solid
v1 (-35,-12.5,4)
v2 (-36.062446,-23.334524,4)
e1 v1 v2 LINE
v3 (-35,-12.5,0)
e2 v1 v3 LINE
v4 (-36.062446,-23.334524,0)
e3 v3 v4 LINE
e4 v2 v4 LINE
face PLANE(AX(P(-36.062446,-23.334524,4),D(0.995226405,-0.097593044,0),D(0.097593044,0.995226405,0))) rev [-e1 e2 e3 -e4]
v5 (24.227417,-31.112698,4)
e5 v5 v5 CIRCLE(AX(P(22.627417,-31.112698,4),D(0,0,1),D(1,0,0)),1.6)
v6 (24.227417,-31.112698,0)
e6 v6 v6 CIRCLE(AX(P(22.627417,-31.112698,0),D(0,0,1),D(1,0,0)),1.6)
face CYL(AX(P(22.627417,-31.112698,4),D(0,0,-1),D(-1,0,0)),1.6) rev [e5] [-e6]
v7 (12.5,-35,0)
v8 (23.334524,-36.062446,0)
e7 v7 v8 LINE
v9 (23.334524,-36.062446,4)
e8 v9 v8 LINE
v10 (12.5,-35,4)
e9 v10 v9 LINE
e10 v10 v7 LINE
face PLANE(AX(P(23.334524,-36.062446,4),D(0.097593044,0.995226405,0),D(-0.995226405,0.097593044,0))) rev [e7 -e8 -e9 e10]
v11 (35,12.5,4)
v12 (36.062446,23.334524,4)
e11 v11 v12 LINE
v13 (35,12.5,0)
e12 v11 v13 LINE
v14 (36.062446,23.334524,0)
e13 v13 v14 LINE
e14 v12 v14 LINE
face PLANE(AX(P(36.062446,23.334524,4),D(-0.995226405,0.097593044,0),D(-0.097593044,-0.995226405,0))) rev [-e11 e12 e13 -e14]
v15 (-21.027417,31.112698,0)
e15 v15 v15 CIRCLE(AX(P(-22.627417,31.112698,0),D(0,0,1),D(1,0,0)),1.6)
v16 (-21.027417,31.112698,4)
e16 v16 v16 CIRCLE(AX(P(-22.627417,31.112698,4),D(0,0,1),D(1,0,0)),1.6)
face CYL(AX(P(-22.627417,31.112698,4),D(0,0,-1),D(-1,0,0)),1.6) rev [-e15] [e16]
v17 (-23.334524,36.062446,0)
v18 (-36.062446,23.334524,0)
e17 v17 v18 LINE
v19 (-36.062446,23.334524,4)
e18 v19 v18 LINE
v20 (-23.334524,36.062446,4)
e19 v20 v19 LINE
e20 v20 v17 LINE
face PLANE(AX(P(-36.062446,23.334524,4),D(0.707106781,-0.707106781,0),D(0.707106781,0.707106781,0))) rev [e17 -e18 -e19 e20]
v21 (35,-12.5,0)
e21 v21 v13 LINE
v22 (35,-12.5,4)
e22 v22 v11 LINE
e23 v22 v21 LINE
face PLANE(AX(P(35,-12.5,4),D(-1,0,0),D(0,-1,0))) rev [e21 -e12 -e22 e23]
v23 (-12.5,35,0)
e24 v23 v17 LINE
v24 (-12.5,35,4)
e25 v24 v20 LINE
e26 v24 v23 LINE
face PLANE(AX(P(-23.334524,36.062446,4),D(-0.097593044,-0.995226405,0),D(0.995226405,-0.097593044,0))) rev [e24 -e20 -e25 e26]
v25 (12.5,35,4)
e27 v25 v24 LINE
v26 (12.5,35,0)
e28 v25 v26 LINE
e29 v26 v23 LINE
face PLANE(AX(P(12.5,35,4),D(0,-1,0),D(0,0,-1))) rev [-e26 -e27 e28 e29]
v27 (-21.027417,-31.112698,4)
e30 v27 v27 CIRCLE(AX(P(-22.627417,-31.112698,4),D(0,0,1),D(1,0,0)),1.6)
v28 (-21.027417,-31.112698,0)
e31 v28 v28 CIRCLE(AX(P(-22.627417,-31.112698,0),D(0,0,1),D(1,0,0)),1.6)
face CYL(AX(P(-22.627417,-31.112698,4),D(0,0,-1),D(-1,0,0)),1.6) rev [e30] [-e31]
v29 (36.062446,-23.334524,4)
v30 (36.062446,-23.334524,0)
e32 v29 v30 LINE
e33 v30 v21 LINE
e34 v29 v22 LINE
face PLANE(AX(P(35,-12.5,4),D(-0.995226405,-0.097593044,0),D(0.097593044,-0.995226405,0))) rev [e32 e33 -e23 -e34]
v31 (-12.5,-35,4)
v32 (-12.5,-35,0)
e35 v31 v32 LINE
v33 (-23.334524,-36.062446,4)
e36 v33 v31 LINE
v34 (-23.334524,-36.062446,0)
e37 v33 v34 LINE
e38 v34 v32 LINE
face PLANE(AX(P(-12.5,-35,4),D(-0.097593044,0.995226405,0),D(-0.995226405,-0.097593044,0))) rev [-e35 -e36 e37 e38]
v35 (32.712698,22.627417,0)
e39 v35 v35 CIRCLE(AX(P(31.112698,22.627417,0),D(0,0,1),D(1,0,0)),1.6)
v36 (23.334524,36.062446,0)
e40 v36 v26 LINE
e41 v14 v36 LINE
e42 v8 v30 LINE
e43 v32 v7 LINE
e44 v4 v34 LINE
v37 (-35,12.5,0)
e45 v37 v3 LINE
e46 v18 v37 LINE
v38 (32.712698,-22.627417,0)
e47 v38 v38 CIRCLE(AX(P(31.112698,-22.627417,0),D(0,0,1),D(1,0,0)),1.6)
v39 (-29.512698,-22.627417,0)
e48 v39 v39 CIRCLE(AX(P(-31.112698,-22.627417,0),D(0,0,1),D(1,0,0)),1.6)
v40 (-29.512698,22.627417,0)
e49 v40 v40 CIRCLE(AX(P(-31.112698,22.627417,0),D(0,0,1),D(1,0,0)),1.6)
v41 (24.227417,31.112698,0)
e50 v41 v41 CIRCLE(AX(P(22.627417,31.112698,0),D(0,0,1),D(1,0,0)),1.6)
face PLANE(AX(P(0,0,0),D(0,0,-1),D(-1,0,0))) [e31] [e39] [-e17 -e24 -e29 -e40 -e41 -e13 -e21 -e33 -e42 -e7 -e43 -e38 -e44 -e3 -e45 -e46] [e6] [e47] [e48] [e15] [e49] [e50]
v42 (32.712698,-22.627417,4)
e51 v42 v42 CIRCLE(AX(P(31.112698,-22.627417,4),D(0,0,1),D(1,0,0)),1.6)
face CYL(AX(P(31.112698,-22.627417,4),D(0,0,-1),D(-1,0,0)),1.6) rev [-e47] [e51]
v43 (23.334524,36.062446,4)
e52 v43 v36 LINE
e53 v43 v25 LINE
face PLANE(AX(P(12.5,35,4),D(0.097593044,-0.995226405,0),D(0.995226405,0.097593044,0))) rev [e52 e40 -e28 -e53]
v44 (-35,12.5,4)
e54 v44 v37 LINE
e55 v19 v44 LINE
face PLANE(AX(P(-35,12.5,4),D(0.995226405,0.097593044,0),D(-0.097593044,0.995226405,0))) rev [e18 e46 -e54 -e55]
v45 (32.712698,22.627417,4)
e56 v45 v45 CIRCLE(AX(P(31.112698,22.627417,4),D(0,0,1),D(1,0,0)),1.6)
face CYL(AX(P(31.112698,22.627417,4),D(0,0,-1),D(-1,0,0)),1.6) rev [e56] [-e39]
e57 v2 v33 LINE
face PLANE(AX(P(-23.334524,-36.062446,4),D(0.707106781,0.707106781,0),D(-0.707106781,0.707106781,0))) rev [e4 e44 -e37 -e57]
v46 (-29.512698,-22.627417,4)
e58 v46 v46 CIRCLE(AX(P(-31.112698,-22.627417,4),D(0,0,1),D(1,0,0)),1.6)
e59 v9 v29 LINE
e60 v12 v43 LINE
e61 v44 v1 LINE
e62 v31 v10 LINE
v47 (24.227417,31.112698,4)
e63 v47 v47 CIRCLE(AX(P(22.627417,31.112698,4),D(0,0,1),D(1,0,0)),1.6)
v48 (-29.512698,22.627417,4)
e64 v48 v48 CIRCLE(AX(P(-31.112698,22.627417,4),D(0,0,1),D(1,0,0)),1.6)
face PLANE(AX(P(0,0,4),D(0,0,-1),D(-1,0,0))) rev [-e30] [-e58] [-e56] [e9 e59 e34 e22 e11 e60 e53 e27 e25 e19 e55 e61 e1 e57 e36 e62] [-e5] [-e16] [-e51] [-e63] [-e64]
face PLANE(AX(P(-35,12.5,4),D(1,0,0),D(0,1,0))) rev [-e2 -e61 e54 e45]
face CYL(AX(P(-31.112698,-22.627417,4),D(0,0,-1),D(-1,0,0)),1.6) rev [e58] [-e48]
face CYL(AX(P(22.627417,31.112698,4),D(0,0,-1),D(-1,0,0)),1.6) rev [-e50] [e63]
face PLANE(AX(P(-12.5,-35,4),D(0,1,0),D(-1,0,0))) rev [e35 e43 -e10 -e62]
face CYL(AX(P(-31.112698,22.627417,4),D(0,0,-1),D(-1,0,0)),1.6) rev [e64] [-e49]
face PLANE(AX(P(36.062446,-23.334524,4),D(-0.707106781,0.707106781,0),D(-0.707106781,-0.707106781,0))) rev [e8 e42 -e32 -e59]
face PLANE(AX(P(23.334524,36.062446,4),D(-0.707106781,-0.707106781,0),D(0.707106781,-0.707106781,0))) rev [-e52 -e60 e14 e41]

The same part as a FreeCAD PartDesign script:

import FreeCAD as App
import Part
import Sketcher

V = App.Vector


def add_polygon(sketch, points):
    """Adds a closed chain of lines whose ends are joined by coincident constraints."""
    first, n = sketch.GeometryCount, len(points)
    for a, b in zip(points, points[1:] + points[:1]):
        sketch.addGeometry(Part.LineSegment(App.Vector(*a, 0), App.Vector(*b, 0)), False)
    for i in range(n):
        sketch.addConstraint(Sketcher.Constraint("Coincident", first + i, 2, first + (i + 1) % n, 1))

doc = App.newDocument("Part")
body = doc.addObject("PartDesign::Body", "Body")

# Sketch on XY plane
sketch1 = body.newObject("Sketcher::SketchObject", "Sketch")
sketch1.AttachmentSupport = (doc.getObject("XY_Plane"), [""])
sketch1.MapMode = "FlatFace"
add_polygon(sketch1, [(12.5, 35), (-12.5, 35), (-23.334524, 36.062446), (-36.062446, 23.334524), (-35, 12.5), (-35, -12.5), (-36.062446, -23.334524), (-23.334524, -36.062446), (-12.5, -35), (12.5, -35), (23.334524, -36.062446), (36.062446, -23.334524), (35, -12.5), (35, 12.5), (36.062446, 23.334524), (23.334524, 36.062446)])  # lines 0-15
sketch1.addGeometry(Part.Circle(V(-22.627417, -31.112698, 0), V(0, 0, 1), 1.6), False)  # 16
sketch1.addGeometry(Part.Circle(V(-31.112698, -22.627417, 0), V(0, 0, 1), 1.6), False)  # 17
sketch1.addGeometry(Part.Circle(V(22.627417, -31.112698, 0), V(0, 0, 1), 1.6), False)  # 18
sketch1.addGeometry(Part.Circle(V(31.112698, -22.627417, 0), V(0, 0, 1), 1.6), False)  # 19
sketch1.addGeometry(Part.Circle(V(-31.112698, 22.627417, 0), V(0, 0, 1), 1.6), False)  # 20
sketch1.addGeometry(Part.Circle(V(-22.627417, 31.112698, 0), V(0, 0, 1), 1.6), False)  # 21
sketch1.addGeometry(Part.Circle(V(31.112698, 22.627417, 0), V(0, 0, 1), 1.6), False)  # 22
sketch1.addGeometry(Part.Circle(V(22.627417, 31.112698, 0), V(0, 0, 1), 1.6), False)  # 23
sketch1.addConstraint(Sketcher.Constraint("Horizontal", 0))
sketch1.addConstraint(Sketcher.Constraint("Vertical", 4))
sketch1.addConstraint(Sketcher.Constraint("Horizontal", 8))
sketch1.addConstraint(Sketcher.Constraint("Vertical", 12))
sketch1.addConstraint(Sketcher.Constraint("Equal", 16, 17))
sketch1.addConstraint(Sketcher.Constraint("Equal", 17, 18))
sketch1.addConstraint(Sketcher.Constraint("Equal", 18, 19))
sketch1.addConstraint(Sketcher.Constraint("Equal", 19, 20))
sketch1.addConstraint(Sketcher.Constraint("Equal", 20, 21))
sketch1.addConstraint(Sketcher.Constraint("Equal", 21, 22))
sketch1.addConstraint(Sketcher.Constraint("Equal", 22, 23))
sketch1.addConstraint(Sketcher.Constraint("Symmetric", 19, 3, 20, 3, -1, 1))
sketch1.addConstraint(Sketcher.Constraint("Symmetric", 18, 3, 21, 3, -1, 1))
sketch1.addConstraint(Sketcher.Constraint("Symmetric", 17, 3, 22, 3, -1, 1))
sketch1.addConstraint(Sketcher.Constraint("Symmetric", 16, 3, 23, 3, -1, 1))
sketch1.addConstraint(Sketcher.Constraint("Symmetric", 0, 2, 8, 2, -1, 1))
sketch1.addConstraint(Sketcher.Constraint("Symmetric", 1, 2, 9, 2, -1, 1))
sketch1.addConstraint(Sketcher.Constraint("Symmetric", 2, 2, 10, 2, -1, 1))
sketch1.addConstraint(Sketcher.Constraint("Symmetric", 3, 2, 11, 2, -1, 1))
sketch1.addConstraint(Sketcher.Constraint("Symmetric", 5, 2, 13, 2, -1, 1))
sketch1.addConstraint(Sketcher.Constraint("Symmetric", 6, 2, 14, 2, -1, 1))
sketch1.addConstraint(Sketcher.Constraint("Symmetric", 16, 3, 18, 3, -2))
sketch1.addConstraint(Sketcher.Constraint("Symmetric", 17, 3, 19, 3, -2))
sketch1.addConstraint(Sketcher.Constraint("Symmetric", 6, 2, 9, 2, -2))
sketch1.addConstraint(Sketcher.Constraint("Symmetric", 5, 2, 10, 2, -2))
sketch1.addConstraint(Sketcher.Constraint("Perpendicular", 1, 5))
sketch1.addConstraint(Sketcher.Constraint("Perpendicular", 2, 6))
sketch1.addConstraint(Sketcher.Constraint("Perpendicular", 3, 7))
sketch1.addConstraint(Sketcher.Constraint("Perpendicular", 9, 13))
sketch1.addConstraint(Sketcher.Constraint("Perpendicular", 11, 15))
sketch1.addConstraint(Sketcher.Constraint("Horizontal", 4, 2, 11, 2))
sketch1.addConstraint(Sketcher.Constraint("Equal", 8, 4))
sketch1.addConstraint(Sketcher.Constraint("Equal", 1, 3))
sketch1.addConstraint(Sketcher.Constraint("Diameter", 16, 3.2))
sketch1.addConstraint(Sketcher.Constraint("DistanceX", 0, 2, 0, 1, 25.0))
sketch1.addConstraint(Sketcher.Constraint("Distance", 2, 18.0))
sketch1.addConstraint(Sketcher.Constraint("DistanceY", -1, 1, 0, 2, 35.0))
sketch1.addConstraint(Sketcher.Constraint("DistanceY", 16, 3, -1, 1, 31.112698))
sketch1.addConstraint(Sketcher.Constraint("DistanceX", 17, 3, -1, 1, 31.112698))
sketch1.addConstraint(Sketcher.Constraint("Distance", 1, 10.886491))
sketch1.addConstraint(Sketcher.Constraint("DistanceX", 17, 3, 16, 3, 8.485281))
sketch1.addConstraint(Sketcher.Constraint("DistanceY", 16, 3, 17, 3, 8.485281))
pad1 = body.newObject("PartDesign::Pad", "Pad")
pad1.Profile = sketch1
pad1.Length = 4

doc.recompute()
